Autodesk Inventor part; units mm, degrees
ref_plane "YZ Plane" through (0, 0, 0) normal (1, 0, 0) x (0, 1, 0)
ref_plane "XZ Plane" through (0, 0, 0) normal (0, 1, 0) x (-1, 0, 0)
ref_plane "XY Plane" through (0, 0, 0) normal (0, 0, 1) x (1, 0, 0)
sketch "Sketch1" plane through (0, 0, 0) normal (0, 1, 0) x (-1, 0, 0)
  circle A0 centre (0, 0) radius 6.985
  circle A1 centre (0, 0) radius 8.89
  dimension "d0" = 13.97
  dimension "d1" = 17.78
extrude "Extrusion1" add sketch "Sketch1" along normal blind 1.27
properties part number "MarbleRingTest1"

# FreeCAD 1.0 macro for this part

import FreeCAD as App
import Part
import Sketcher
Q = App.Units.Quantity

doc = App.newDocument("Part")
params = doc.addObject("Spreadsheet::Sheet", "Params")
for row, (alias, value) in enumerate([
    ("sketch1_diameter", "0.7 in"),
    ("sketch1_diameter2", "0.55 in"),
    ("pad1_length", "0.05 in"),
], start=1):
    params.set(f"A{row}", alias)
    params.set(f"B{row}", "=" + value)
    params.setAlias(f"B{row}", alias)

body = doc.addObject("PartDesign::Body", "Body")

# Sketch on XZ plane
sketch1 = body.newObject("Sketcher::SketchObject", "Sketch")
sketch1.AttachmentSupport = (doc.getObject("XZ_Plane"), [""])
sketch1.MapMode = "FlatFace"
sketch1.addGeometry([
    Part.Circle(App.Vector(0, 0, 0), App.Vector(0, 0, 1), 8.89),
    Part.Circle(App.Vector(0, 0, 0), App.Vector(0, 0, 1), 6.985),
], False)
sketch1.addConstraint([
    Sketcher.Constraint("Coincident", 0, 3, -1, 1),
    Sketcher.Constraint("Coincident", 1, 3, -1, 1),
    Sketcher.Constraint("Diameter", 0, Q("0.7 in")),
    Sketcher.Constraint("Diameter", 1, Q("0.55 in")),
])
sketch1.setExpression("Constraints[2]", "Params.sketch1_diameter")
sketch1.setExpression("Constraints[3]", "Params.sketch1_diameter2")
pad1 = body.newObject("PartDesign::Pad", "Pad")
pad1.Profile = sketch1
pad1.setExpression("Length", "Params.pad1_length")
pad1.Reversed = True

doc.recompute()
